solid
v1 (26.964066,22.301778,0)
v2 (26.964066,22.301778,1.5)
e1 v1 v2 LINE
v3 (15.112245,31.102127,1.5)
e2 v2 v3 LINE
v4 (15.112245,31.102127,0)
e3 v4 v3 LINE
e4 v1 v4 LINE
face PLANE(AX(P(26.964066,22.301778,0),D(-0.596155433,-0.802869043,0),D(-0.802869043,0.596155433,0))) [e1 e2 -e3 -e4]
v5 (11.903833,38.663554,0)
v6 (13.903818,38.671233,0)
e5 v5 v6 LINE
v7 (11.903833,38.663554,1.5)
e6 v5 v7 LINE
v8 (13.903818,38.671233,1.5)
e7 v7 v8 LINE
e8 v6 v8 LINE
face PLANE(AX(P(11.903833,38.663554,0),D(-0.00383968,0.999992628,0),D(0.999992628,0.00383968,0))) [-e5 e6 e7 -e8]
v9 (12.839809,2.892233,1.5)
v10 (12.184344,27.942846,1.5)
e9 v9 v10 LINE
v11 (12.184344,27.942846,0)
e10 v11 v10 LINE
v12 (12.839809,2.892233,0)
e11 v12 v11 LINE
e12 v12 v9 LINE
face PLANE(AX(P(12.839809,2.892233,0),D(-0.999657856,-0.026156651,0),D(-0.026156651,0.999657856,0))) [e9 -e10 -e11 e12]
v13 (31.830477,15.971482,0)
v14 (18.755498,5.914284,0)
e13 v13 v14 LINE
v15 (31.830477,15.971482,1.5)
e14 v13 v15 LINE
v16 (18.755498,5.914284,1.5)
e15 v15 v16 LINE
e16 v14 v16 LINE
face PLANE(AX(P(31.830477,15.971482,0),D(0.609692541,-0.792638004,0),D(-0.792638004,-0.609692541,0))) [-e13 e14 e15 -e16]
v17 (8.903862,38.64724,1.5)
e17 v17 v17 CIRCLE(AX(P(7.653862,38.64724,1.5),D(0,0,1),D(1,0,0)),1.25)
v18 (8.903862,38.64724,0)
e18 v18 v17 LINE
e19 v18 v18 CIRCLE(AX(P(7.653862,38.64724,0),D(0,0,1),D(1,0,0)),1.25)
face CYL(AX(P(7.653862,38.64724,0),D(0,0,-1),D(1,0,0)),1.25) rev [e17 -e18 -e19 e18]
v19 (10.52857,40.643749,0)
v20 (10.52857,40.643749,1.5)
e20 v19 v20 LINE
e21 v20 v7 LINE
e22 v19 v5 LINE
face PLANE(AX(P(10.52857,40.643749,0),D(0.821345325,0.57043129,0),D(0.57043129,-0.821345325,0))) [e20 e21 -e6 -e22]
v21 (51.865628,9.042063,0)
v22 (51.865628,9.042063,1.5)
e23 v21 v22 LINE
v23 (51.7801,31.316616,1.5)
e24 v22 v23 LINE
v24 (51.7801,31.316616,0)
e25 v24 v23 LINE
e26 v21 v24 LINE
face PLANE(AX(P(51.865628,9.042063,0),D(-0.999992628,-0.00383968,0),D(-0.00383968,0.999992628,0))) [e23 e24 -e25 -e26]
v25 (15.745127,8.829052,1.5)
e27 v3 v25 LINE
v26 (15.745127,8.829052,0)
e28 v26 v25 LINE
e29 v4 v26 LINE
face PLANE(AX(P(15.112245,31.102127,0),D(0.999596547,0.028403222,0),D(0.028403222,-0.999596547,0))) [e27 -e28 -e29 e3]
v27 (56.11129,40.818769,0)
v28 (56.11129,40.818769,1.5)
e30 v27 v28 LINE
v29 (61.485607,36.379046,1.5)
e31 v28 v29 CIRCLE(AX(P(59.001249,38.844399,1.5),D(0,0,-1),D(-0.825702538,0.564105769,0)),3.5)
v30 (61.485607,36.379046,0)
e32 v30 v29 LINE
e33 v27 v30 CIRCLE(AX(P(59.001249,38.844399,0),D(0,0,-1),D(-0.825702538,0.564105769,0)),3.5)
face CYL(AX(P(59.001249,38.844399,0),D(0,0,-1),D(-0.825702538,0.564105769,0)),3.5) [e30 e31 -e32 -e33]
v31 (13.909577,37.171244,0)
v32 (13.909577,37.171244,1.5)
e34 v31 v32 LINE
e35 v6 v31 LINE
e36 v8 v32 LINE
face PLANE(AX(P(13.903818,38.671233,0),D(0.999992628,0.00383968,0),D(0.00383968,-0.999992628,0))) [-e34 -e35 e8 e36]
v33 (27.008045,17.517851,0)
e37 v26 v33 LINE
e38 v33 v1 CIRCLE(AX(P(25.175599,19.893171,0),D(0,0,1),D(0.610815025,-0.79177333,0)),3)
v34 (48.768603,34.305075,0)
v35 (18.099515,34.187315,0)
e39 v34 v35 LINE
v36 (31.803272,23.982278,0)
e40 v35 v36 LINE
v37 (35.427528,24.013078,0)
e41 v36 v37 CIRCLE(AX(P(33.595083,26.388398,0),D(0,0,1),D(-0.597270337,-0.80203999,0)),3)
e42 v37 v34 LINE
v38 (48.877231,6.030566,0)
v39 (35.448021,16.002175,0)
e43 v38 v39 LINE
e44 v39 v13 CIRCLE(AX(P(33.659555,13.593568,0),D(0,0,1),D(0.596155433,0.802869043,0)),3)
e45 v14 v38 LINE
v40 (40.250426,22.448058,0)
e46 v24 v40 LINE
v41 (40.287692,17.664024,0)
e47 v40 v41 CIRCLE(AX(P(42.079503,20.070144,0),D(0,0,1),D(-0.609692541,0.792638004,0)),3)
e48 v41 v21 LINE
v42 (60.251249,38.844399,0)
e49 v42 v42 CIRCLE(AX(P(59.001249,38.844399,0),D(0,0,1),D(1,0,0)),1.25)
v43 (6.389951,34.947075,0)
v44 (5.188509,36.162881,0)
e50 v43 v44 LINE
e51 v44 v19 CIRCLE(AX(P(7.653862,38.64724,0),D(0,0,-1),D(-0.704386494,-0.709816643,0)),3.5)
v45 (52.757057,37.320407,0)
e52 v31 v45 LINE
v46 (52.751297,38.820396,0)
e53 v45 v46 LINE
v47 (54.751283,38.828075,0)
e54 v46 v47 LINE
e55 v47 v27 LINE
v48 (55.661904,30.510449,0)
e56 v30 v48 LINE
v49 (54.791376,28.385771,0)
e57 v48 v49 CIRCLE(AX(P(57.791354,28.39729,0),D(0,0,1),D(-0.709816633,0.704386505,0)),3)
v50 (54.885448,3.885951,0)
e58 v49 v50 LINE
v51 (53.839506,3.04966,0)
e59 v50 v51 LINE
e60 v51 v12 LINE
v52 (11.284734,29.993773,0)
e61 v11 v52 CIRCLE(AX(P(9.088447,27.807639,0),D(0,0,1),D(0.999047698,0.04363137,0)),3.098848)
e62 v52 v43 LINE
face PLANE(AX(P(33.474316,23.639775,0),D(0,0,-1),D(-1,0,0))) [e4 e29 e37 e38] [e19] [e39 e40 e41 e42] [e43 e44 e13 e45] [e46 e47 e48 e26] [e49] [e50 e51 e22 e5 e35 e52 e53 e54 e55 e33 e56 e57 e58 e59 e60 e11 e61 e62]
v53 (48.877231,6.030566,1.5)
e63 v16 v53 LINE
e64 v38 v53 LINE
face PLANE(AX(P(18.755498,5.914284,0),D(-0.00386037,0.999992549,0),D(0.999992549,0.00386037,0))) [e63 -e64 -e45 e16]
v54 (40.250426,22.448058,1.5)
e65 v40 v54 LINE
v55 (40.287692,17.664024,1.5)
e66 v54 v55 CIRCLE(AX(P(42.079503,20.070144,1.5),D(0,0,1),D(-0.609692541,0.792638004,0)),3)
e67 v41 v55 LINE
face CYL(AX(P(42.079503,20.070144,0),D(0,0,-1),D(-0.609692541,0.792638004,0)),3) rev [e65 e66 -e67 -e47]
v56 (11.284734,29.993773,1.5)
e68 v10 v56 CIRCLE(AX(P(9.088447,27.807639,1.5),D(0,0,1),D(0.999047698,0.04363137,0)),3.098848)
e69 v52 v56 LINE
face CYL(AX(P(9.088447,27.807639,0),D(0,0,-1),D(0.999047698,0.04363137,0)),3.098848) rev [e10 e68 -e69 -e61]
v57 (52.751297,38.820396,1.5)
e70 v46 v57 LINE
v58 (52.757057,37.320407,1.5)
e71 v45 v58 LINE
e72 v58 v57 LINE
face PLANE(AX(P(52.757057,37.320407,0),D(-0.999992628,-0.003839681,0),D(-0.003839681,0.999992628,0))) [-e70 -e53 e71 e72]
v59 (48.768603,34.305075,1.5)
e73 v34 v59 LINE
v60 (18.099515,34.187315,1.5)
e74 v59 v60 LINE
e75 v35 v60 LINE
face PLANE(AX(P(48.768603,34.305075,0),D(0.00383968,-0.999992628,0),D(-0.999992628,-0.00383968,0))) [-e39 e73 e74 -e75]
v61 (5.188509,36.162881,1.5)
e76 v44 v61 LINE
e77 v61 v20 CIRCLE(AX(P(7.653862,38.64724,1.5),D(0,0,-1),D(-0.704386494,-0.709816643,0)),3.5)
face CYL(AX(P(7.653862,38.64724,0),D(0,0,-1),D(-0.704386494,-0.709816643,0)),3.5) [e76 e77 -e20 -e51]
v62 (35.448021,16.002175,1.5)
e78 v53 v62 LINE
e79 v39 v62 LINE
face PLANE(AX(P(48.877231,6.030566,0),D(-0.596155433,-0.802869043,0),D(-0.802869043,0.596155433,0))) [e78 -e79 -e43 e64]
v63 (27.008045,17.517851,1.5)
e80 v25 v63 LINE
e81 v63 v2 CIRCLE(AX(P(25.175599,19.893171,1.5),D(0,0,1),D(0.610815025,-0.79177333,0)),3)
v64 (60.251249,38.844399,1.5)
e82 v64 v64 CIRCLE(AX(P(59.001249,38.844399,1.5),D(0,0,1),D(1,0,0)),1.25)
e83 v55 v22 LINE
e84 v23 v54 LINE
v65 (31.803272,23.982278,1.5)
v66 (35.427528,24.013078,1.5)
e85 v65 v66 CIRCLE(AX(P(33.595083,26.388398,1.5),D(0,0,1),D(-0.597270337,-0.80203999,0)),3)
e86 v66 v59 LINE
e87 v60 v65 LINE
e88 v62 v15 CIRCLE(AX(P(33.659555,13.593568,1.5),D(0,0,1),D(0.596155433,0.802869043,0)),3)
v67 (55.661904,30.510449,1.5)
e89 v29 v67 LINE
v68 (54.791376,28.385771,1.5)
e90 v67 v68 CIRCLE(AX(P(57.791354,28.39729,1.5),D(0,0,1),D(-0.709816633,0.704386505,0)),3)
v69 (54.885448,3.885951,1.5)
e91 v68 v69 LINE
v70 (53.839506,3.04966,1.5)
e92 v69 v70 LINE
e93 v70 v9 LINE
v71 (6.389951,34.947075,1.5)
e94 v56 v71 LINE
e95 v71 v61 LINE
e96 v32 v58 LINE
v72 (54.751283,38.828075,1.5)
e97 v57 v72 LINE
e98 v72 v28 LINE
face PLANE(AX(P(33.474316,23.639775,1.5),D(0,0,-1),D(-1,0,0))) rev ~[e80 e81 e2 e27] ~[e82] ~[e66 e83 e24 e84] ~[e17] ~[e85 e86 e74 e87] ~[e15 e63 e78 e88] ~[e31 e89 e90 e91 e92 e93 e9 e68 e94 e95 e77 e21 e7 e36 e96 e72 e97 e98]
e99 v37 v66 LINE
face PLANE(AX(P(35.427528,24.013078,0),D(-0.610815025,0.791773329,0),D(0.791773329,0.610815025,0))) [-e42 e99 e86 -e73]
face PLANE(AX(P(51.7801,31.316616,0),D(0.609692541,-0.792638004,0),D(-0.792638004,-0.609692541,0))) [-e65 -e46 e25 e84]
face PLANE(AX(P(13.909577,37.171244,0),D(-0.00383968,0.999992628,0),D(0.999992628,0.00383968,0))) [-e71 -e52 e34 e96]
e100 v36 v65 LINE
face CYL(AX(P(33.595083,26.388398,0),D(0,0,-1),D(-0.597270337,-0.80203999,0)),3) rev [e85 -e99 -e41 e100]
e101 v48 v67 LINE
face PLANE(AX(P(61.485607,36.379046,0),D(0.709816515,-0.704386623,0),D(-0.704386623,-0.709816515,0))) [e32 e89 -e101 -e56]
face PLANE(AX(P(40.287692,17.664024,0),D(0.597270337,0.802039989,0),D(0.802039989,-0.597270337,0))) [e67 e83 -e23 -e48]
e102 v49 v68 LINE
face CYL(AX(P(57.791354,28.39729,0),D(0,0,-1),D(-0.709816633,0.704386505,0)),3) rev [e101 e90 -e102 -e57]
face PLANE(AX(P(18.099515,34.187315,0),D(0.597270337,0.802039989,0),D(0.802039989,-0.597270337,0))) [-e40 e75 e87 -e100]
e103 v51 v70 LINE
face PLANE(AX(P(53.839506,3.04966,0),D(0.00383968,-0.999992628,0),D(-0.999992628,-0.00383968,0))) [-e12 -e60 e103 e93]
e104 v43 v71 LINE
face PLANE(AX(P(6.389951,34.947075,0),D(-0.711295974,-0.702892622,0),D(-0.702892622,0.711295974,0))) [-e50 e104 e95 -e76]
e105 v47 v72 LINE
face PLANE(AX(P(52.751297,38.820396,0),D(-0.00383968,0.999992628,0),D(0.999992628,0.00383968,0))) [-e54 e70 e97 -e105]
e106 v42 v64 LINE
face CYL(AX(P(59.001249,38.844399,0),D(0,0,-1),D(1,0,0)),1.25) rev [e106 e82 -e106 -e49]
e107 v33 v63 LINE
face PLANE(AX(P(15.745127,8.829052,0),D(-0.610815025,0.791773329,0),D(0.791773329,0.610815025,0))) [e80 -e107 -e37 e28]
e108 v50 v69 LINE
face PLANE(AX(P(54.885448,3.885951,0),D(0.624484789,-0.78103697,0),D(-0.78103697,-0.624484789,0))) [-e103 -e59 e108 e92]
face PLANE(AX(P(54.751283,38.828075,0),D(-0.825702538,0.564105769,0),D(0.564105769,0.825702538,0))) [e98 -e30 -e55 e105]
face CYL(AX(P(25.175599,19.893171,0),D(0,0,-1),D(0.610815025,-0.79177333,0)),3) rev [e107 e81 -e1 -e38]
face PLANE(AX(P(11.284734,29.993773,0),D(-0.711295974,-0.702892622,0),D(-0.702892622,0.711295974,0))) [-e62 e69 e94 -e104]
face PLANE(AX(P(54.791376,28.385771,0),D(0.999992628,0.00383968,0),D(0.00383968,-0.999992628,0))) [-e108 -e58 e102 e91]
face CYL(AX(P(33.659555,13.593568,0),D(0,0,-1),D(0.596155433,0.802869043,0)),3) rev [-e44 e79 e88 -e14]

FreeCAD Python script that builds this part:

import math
import FreeCAD as App
import Part
import Sketcher

V = App.Vector
Q = App.Units.Quantity

doc = App.newDocument("Part")
body = doc.addObject("PartDesign::Body", "Body")

sketch1 = body.newObject("Sketcher::SketchObject", "Sketch")
sketch1.AttachmentSupport = (doc.getObject("XY_Plane"), [""])
sketch1.MapMode = "FlatFace"
sketch1.addGeometry([
    Part.LineSegment(V(55.7, 30.5, 0), V(61.5, 36.4, 0)),
    Part.ArcOfCircle(Part.Circle(V(59, 38.8, 0), V(0, 0, 1), 3.5), math.radians(-45), math.radians(146)),
    Part.LineSegment(V(56.1, 40.8, 0), V(54.8, 38.8, 0)),
    Part.LineSegment(V(54.8, 38.8, 0), V(52.8, 38.8, 0)),
    Part.LineSegment(V(52.8, 38.8, 0), V(52.8, 37.3, 0)),
    Part.LineSegment(V(52.8, 37.3, 0), V(13.9, 37.2, 0)),
    Part.LineSegment(V(13.9, 37.2, 0), V(13.9, 38.7, 0)),
    Part.LineSegment(V(13.9, 38.7, 0), V(11.9, 38.7, 0)),
    Part.LineSegment(V(11.9, 38.7, 0), V(10.5, 40.6, 0)),
    Part.ArcOfCircle(Part.Circle(V(7.7, 38.6, 0), V(0, 0, 1), 3.5), math.radians(35), math.radians(225)),
    Part.LineSegment(V(5.2, 36.2, 0), V(6.4, 34.9, 0)),
    Part.LineSegment(V(6.4, 34.9, 0), V(11.3, 30, 0)),
    Part.ArcOfCircle(Part.Circle(V(9.1, 27.8, 0), V(0, 0, 1), 3.1), math.radians(3), math.radians(45)),
    Part.LineSegment(V(12.2, 27.9, 0), V(12.8, 2.9, 0)),
    Part.LineSegment(V(12.8, 2.9, 0), V(53.8, 3, 0)),
    Part.LineSegment(V(53.8, 3, 0), V(54.9, 3.9, 0)),
    Part.LineSegment(V(54.9, 3.9, 0), V(54.8, 28.4, 0)),
    Part.ArcOfCircle(Part.Circle(V(57.8, 28.4, 0), V(0, 0, 1), 3), math.radians(135), math.radians(180)),
    Part.LineSegment(V(48.9, 6, 0), V(18.8, 5.9, 0)),
    Part.LineSegment(V(18.8, 5.9, 0), V(31.8, 16, 0)),
    Part.ArcOfCircle(Part.Circle(V(33.7, 13.6, 0), V(0, 0, 1), 3), math.radians(53), math.radians(128)),
    Part.LineSegment(V(35.4, 16, 0), V(48.9, 6, 0)),
    Part.ArcOfCircle(Part.Circle(V(42.1, 20.1, 0), V(0, 0, 1), 3), math.radians(128), math.radians(233)),
    Part.LineSegment(V(40.3, 22.4, 0), V(51.8, 31.3, 0)),
    Part.LineSegment(V(51.8, 31.3, 0), V(51.9, 9, 0)),
    Part.LineSegment(V(51.9, 9, 0), V(40.3, 17.7, 0)),
    Part.ArcOfCircle(Part.Circle(V(25.2, 19.9, 0), V(0, 0, 1), 3), math.radians(-52), math.radians(53)),
    Part.LineSegment(V(27, 17.5, 0), V(15.7, 8.8, 0)),
    Part.LineSegment(V(15.7, 8.8, 0), V(15.1, 31.1, 0)),
    Part.LineSegment(V(15.1, 31.1, 0), V(27, 22.3, 0)),
    Part.ArcOfCircle(Part.Circle(V(33.6, 26.4, 0), V(0, 0, 1), 3), math.radians(-127), math.radians(-52)),
    Part.LineSegment(V(31.8, 24, 0), V(18.1, 34.2, 0)),
    Part.LineSegment(V(18.1, 34.2, 0), V(48.8, 34.3, 0)),
    Part.LineSegment(V(48.8, 34.3, 0), V(35.4, 24, 0)),
    Part.Circle(V(59, 38.8, 0), V(0, 0, 1), 1.2),
    Part.Circle(V(7.7, 38.6, 0), V(0, 0, 1), 1.2),
], False)
sketch1.addConstraint([
    Sketcher.Constraint("Tangent", 0, 2, 1, 1),
    Sketcher.Constraint("Tangent", 1, 2, 2, 1),
    Sketcher.Constraint("Coincident", 2, 2, 3, 1),
    Sketcher.Constraint("Coincident", 3, 2, 4, 1),
    Sketcher.Constraint("Coincident", 4, 2, 5, 1),
    Sketcher.Constraint("Coincident", 5, 2, 6, 1),
    Sketcher.Constraint("Coincident", 6, 2, 7, 1),
    Sketcher.Constraint("Coincident", 7, 2, 8, 1),
    Sketcher.Constraint("Tangent", 8, 2, 9, 1),
    Sketcher.Constraint("Coincident", 9, 2, 10, 1),
    Sketcher.Constraint("Coincident", 10, 2, 11, 1),
    Sketcher.Constraint("Coincident", 11, 2, 12, 2),
    Sketcher.Constraint("Coincident", 12, 1, 13, 1),
    Sketcher.Constraint("Coincident", 13, 2, 14, 1),
    Sketcher.Constraint("Coincident", 14, 2, 15, 1),
    Sketcher.Constraint("Coincident", 15, 2, 16, 1),
    Sketcher.Constraint("Tangent", 16, 2, 17, 2),
    Sketcher.Constraint("Tangent", 17, 1, 0, 1),
    Sketcher.Constraint("Coincident", 18, 2, 19, 1),
    Sketcher.Constraint("Tangent", 19, 2, 20, 2),
    Sketcher.Constraint("Tangent", 20, 1, 21, 1),
    Sketcher.Constraint("Coincident", 21, 2, 18, 1),
    Sketcher.Constraint("Tangent", 22, 1, 23, 1),
    Sketcher.Constraint("Coincident", 23, 2, 24, 1),
    Sketcher.Constraint("Coincident", 24, 2, 25, 1),
    Sketcher.Constraint("Tangent", 25, 2, 22, 2),
    Sketcher.Constraint("Tangent", 26, 1, 27, 1),
    Sketcher.Constraint("Coincident", 27, 2, 28, 1),
    Sketcher.Constraint("Coincident", 28, 2, 29, 1),
    Sketcher.Constraint("Tangent", 29, 2, 26, 2),
    Sketcher.Constraint("Tangent", 30, 1, 31, 1),
    Sketcher.Constraint("Coincident", 31, 2, 32, 1),
    Sketcher.Constraint("Coincident", 32, 2, 33, 1),
    Sketcher.Constraint("Tangent", 33, 2, 30, 2),
    Sketcher.Constraint("Coincident", 34, 3, 1, 3),
    Sketcher.Constraint("Coincident", 35, 3, 9, 3),
    Sketcher.Constraint("Equal", 1, 9),
    Sketcher.Constraint("Equal", 17, 20),
    Sketcher.Constraint("Equal", 20, 22),
    Sketcher.Constraint("Equal", 22, 26),
    Sketcher.Constraint("Equal", 26, 30),
    Sketcher.Constraint("Equal", 34, 35),
    Sketcher.Constraint("Perpendicular", 3, 4),
    Sketcher.Constraint("Perpendicular", 4, 5),
    Sketcher.Constraint("Perpendicular", 5, 6),
    Sketcher.Constraint("Perpendicular", 6, 7),
    Sketcher.Constraint("Parallel", 10, 11),
    Sketcher.Constraint("Parallel", 7, 14),
    Sketcher.Constraint("Perpendicular", 14, 16),
    Sketcher.Constraint("Parallel", 19, 23),
    Sketcher.Constraint("Parallel", 16, 24),
    Sketcher.Constraint("Parallel", 21, 29),
    Sketcher.Constraint("Parallel", 25, 31),
    Sketcher.Constraint("Perpendicular", 24, 32),
    Sketcher.Constraint("Parallel", 27, 33),
    Sketcher.Constraint("Equal", 4, 6),
    Sketcher.Constraint("Equal", 3, 7),
    Sketcher.Constraint("Radius", 17, Q("3 mm")),
    Sketcher.Constraint("Diameter", 34, Q("2.5 mm")),
    Sketcher.Constraint("Radius", 1, Q("3.5 mm")),
    Sketcher.Constraint("Distance", 3, Q("2 mm")),
    Sketcher.Constraint("Distance", 14, Q("41 mm")),
    Sketcher.Constraint("Distance", 4, Q("1.5 mm")),
    Sketcher.Constraint("Distance", 16, Q("24.5 mm")),
    Sketcher.Constraint("Angle", 0, Q("45.219988 deg")),
    Sketcher.Constraint("Angle", 3, Q("-179.780002 deg")),
    Sketcher.Constraint("Radius", 12, Q("3.098848 mm")),
    Sketcher.Constraint("DistanceY", 30, 3, 34, 3, Q("12.456001 mm")),
    Sketcher.Constraint("DistanceY", 32, 2, 2, 2, Q("4.523 mm")),
    Sketcher.Constraint("DistanceY", -1, 1, 1, 3, Q("38.844399 mm")),
    Sketcher.Constraint("DistanceX", -1, 1, 26, 3, Q("25.175599 mm")),
    Sketcher.Constraint("DistanceX", -1, 1, 23, 2, Q("51.7801 mm")),
    Sketcher.Constraint("DistanceY", 12, 3, 9, 3, Q("10.8396 mm")),
    Sketcher.Constraint("DistanceX", 12, 3, 1, 3, Q("49.912802 mm")),
    Sketcher.Constraint("DistanceX", 20, 3, 17, 3, Q("24.131799 mm")),
    Sketcher.Constraint("DistanceY", 22, 3, 0, 2, Q("16.308902 mm")),
    Sketcher.Constraint("DistanceX", 11, 2, 7, 2, Q("0.619098 mm")),
    Sketcher.Constraint("DistanceY", 12, 1, 5, 2, Q("9.228398 mm")),
    Sketcher.Constraint("DistanceX", 18, 2, 26, 3, Q("6.420102 mm")),
    Sketcher.Constraint("DistanceY", 18, 2, 19, 2, Q("10.057198 mm")),
    Sketcher.Constraint("DistanceY", 27, 2, 26, 1, Q("8.688799 mm")),
    Sketcher.Constraint("DistanceX", 12, 1, 28, 2, Q("2.9279 mm")),
    Sketcher.Constraint("DistanceY", 29, 2, 30, 1, Q("1.6805 mm")),
    Sketcher.Constraint("DistanceX", 32, 2, 17, 1, Q("6.893301 mm")),
    Sketcher.Constraint("DistanceY", 30, 1, 33, 2, Q("0.0308 mm")),
    Sketcher.Constraint("Distance", 2, Q("2.410908 mm")),
    Sketcher.Constraint("Distance", 11, Q("6.963771 mm")),
    Sketcher.Constraint("Distance", 15, Q("1.33917 mm")),
    Sketcher.Constraint("Distance", 23, Q("14.545952 mm")),
    Sketcher.Constraint("Distance", 25, Q("14.435609 mm")),
    Sketcher.Constraint("DistanceX", -1, 1, 1, 3, Q("59.001249 mm")),
    Sketcher.Constraint("DistanceX", -1, 1, 9, 3, Q("7.653862 mm")),
    Sketcher.Constraint("DistanceY", -1, 1, 9, 3, Q("38.64724 mm")),
    Sketcher.Constraint("DistanceY", -1, 1, 17, 3, Q("28.39729 mm")),
    Sketcher.Constraint("DistanceY", -1, 1, 20, 3, Q("13.593568 mm")),
    Sketcher.Constraint("DistanceY", -1, 1, 26, 3, Q("19.893171 mm")),
    Sketcher.Constraint("DistanceX", -1, 1, 1, 2, Q("56.11129 mm")),
    Sketcher.Constraint("DistanceX", -1, 1, 8, 2, Q("10.52857 mm")),
    Sketcher.Constraint("DistanceX", -1, 1, 9, 2, Q("5.188509 mm")),
    Sketcher.Constraint("DistanceX", -1, 1, 13, 2, Q("12.839809 mm")),
    Sketcher.Constraint("DistanceX", -1, 1, 21, 2, Q("48.877231 mm")),
])
pad1 = body.newObject("PartDesign::Pad", "Pad")
pad1.Profile = sketch1
pad1.Length = 1.5

doc.recompute()
